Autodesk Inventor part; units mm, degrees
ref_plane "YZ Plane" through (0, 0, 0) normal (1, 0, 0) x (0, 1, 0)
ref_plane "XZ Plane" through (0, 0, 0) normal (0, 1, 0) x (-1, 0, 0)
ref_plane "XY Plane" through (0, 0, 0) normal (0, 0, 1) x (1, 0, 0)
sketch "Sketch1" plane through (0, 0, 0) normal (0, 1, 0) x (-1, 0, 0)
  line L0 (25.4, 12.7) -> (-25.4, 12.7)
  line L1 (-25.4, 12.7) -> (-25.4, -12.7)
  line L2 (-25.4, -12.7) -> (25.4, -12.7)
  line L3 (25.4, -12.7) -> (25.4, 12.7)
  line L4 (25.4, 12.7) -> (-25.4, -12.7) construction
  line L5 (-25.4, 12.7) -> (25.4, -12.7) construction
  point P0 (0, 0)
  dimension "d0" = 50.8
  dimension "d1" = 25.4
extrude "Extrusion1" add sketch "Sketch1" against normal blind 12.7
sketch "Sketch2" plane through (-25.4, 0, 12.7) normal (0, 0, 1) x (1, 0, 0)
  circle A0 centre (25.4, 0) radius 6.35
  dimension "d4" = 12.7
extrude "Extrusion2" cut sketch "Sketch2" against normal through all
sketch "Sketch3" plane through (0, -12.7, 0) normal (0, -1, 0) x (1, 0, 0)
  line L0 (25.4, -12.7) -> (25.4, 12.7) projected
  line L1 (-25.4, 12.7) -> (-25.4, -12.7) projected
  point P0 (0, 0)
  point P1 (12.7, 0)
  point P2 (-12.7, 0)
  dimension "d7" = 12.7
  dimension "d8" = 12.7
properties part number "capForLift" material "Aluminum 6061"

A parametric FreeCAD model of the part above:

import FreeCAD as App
import Part
import Sketcher
Q = App.Units.Quantity


def add_polygon(sketch, points):
    """Adds a closed chain of lines whose ends are joined by coincident constraints."""
    first, n = sketch.GeometryCount, len(points)
    for a, b in zip(points, points[1:] + points[:1]):
        sketch.addGeometry(Part.LineSegment(App.Vector(*a, 0), App.Vector(*b, 0)), False)
    for i in range(n):
        sketch.addConstraint(Sketcher.Constraint("Coincident", first + i, 2, first + (i + 1) % n, 1))

doc = App.newDocument("Part")
body = doc.addObject("PartDesign::Body", "Body")

sketch1 = doc.addObject("Sketcher::SketchObject", "Sketch")
body.addObject(sketch1)
sketch1.AttachmentSupport = (doc.XZ_Plane, [""])
sketch1.MapMode = "FlatFace"
add_polygon(sketch1, [(-25.4, -12.7), (-25.4, 12.7), (25.4, 12.7), (25.4, -12.7)])
sketch1.addConstraint(Sketcher.Constraint("Vertical", 0))
sketch1.addConstraint(Sketcher.Constraint("Horizontal", 1))
sketch1.addConstraint(Sketcher.Constraint("Vertical", 2))
sketch1.addConstraint(Sketcher.Constraint("Horizontal", 3))
sketch1.addConstraint(Sketcher.Constraint("Symmetric", 0, 2, 2, 2, -1, 1))
sketch1.addConstraint(Sketcher.Constraint("DistanceX", 1, 1, 1, 2, Q("2 in")))
sketch1.addConstraint(Sketcher.Constraint("DistanceY", 0, 1, 0, 2, Q("1 in")))
pad1 = doc.addObject("PartDesign::Pad", "Pad")
body.addObject(pad1)
pad1.Profile = sketch1
pad1.Length = Q("0.5 in")

sketch2 = doc.addObject("Sketcher::SketchObject", "Sketch001")
body.addObject(sketch2)
sketch2.AttachmentSupport = (doc.XY_Plane, [""])
sketch2.MapMode = "FlatFace"
sketch2.AttachmentOffset = App.Placement(App.Vector(0, 0, 0.5 * 25.4), App.Rotation())
sketch2.addGeometry(Part.Circle(App.Vector(0, 0, 0), App.Vector(0, 0, 1), 6.35), False)
sketch2.addConstraint(Sketcher.Constraint("Coincident", 0, 3, -1, 1))
sketch2.addConstraint(Sketcher.Constraint("Diameter", 0, Q("0.5 in")))
pocket1 = doc.addObject("PartDesign::Pocket", "Pocket")
body.addObject(pocket1)
pocket1.Profile = sketch2
pocket1.Type = "ThroughAll"

doc.recompute()
